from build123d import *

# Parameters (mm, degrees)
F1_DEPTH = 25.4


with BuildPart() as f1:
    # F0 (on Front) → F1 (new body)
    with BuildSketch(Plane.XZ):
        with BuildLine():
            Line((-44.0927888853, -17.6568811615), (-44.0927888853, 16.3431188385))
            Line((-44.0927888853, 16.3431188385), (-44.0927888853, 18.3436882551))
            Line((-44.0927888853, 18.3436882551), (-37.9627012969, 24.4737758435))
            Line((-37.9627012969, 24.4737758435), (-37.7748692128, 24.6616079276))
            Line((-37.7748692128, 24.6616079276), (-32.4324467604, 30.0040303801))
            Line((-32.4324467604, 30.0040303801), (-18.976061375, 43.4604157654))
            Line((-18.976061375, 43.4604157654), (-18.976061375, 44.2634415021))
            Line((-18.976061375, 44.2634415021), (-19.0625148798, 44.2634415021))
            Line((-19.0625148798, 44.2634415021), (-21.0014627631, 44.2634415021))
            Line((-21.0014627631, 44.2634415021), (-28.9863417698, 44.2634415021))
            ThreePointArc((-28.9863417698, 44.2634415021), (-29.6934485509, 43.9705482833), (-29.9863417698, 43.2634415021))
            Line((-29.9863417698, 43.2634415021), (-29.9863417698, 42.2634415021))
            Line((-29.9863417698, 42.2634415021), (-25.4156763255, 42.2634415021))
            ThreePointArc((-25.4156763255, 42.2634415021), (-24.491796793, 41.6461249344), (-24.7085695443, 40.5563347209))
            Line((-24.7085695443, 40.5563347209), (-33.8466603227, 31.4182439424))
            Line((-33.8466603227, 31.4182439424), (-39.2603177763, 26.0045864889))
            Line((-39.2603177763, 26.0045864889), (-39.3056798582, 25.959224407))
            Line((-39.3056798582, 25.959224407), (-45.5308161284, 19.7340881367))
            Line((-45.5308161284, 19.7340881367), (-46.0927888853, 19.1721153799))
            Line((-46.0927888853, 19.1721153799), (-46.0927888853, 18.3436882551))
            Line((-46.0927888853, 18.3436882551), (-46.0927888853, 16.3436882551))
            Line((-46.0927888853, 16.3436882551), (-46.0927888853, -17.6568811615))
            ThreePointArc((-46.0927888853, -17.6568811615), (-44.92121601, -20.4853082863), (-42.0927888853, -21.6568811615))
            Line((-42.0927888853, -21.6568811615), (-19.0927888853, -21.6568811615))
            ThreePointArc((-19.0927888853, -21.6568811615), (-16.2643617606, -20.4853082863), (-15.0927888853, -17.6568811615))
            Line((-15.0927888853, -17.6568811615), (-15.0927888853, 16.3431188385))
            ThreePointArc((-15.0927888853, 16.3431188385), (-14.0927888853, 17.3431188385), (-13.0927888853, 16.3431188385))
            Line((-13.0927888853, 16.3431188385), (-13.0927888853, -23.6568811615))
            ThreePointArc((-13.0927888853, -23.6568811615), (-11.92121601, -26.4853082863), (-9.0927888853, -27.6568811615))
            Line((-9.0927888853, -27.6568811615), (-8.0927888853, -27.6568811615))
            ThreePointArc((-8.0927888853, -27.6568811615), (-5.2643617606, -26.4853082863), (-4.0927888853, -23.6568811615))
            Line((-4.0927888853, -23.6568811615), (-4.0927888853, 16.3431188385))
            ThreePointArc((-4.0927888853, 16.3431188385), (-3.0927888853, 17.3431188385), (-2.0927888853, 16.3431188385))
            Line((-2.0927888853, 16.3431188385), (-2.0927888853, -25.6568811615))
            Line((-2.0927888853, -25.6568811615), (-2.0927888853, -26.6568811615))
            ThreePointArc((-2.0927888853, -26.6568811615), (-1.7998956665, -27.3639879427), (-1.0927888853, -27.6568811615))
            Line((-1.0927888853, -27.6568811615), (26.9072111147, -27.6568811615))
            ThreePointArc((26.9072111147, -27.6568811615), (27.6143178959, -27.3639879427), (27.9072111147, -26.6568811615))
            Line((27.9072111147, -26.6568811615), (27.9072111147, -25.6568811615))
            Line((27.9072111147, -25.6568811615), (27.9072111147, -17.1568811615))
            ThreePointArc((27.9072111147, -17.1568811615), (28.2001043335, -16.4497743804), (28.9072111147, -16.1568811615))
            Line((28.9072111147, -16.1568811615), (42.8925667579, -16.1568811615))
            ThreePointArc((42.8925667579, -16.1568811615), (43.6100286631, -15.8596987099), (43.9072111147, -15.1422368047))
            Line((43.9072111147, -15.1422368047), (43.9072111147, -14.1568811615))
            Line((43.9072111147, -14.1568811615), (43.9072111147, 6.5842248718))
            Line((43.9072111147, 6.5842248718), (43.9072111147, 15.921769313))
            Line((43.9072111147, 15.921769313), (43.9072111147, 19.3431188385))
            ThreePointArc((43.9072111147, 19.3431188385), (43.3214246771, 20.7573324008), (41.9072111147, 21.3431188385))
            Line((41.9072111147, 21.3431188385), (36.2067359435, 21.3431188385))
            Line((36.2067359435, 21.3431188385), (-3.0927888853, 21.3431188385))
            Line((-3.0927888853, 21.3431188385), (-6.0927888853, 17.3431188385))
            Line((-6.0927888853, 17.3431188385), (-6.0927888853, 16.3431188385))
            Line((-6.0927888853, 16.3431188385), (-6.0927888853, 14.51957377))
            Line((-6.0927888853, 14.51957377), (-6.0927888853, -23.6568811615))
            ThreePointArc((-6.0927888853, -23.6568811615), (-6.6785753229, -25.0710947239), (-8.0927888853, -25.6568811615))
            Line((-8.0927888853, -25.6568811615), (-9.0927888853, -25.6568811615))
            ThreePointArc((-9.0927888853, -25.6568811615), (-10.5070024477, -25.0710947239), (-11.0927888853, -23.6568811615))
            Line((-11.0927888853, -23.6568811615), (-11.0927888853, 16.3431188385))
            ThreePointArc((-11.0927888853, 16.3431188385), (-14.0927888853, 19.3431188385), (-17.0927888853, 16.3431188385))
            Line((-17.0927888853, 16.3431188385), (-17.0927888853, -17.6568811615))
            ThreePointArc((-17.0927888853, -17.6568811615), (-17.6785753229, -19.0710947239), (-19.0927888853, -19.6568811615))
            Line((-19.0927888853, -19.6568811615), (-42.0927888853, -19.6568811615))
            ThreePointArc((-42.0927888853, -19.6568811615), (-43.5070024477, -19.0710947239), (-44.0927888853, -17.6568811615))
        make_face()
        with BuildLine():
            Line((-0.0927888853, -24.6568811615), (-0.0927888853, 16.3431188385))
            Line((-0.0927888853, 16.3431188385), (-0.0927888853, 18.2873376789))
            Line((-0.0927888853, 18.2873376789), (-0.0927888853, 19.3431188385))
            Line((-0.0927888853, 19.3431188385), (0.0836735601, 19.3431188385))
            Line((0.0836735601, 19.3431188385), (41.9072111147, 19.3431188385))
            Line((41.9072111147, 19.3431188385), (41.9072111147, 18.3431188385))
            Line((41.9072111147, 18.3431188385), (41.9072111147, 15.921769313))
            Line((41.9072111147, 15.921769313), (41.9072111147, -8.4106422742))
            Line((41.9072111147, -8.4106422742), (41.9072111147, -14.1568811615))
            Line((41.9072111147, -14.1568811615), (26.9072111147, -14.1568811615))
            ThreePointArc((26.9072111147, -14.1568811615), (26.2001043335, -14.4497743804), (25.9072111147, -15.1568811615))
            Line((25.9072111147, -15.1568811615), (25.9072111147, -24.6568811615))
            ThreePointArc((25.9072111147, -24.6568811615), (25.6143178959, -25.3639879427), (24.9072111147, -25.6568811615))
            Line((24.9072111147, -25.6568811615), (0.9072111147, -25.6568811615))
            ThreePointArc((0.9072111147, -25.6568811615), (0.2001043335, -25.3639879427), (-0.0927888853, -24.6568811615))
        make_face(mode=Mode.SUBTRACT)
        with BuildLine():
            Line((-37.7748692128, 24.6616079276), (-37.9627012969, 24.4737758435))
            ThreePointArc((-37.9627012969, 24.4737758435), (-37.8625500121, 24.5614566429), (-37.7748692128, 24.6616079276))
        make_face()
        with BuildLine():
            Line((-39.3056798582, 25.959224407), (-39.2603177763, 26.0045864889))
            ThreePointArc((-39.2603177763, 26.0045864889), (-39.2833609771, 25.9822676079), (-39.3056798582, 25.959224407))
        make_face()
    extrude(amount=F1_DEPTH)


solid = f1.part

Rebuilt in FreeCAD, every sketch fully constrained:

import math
import FreeCAD as App
import Part
import Sketcher
Q = App.Units.Quantity

doc = App.newDocument("Part")
params = doc.addObject("Spreadsheet::Sheet", "Params")
for row, (alias, value) in enumerate([
    ("sketch1_radius", "1 mm"),
    ("sketch1_radius2", "1 mm"),
    ("sketch1_radius3", "4 mm"),
    ("sketch1_radius4", "4 mm"),
    ("sketch1_radius5", "1 mm"),
    ("pad1_length", "25.4 mm"),
], start=1):
    params.set(f"A{row}", alias)
    params.set(f"B{row}", "=" + value)
    params.setAlias(f"B{row}", alias)

body = doc.addObject("PartDesign::Body", "Body")

# Sketch on XZ plane
sketch1 = doc.addObject("Sketcher::SketchObject", "Sketch")
body.addObject(sketch1)
sketch1.AttachmentSupport = (doc.XZ_Plane, [""])
sketch1.MapMode = "FlatFace"
sketch1.addGeometry([
    Part.LineSegment(App.Vector(-44.092789, -17.656881, 0), App.Vector(-44.092789, 18.343688, 0)),  # 0
    Part.LineSegment(App.Vector(-44.092789, 18.343688, 0), App.Vector(-37.962701, 24.473776, 0)),  # 1
    Part.ArcOfCircle(Part.Circle(App.Vector(-38.572955, 25.271862, 0), App.Vector(0, 0, 1), 1.004665), math.radians(-52.596776), math.radians(-37.403224)),  # 2
    Part.LineSegment(App.Vector(-37.774869, 24.661608, 0), App.Vector(-32.432447, 30.00403, 0)),  # 3
    Part.LineSegment(App.Vector(-32.432447, 30.00403, 0), App.Vector(-18.976061, 43.460416, 0)),  # 4
    Part.LineSegment(App.Vector(-18.976061, 43.460416, 0), App.Vector(-18.976061, 44.263442, 0)),  # 5
    Part.LineSegment(App.Vector(-18.976061, 44.263442, 0), App.Vector(-28.986342, 44.263442, 0)),  # 6
    Part.ArcOfCircle(Part.Circle(App.Vector(-28.986342, 43.263442, 0), App.Vector(0, 0, 1), 1), math.radians(90), math.radians(180)),  # 7
    Part.LineSegment(App.Vector(-29.986342, 43.263442, 0), App.Vector(-29.986342, 42.263442, 0)),  # 8
    Part.LineSegment(App.Vector(-29.986342, 42.263442, 0), App.Vector(-25.415676, 42.263442, 0)),  # 9
    Part.ArcOfCircle(Part.Circle(App.Vector(-25.415676, 41.263442, 0), App.Vector(0, 0, 1), 1), math.radians(-45), math.radians(90)),  # 10
    Part.LineSegment(App.Vector(-24.70857, 40.556335, 0), App.Vector(-33.84666, 31.418244, 0)),  # 11
    Part.LineSegment(App.Vector(-33.84666, 31.418244, 0), App.Vector(-39.260318, 26.004586, 0)),  # 12
    Part.ArcOfCircle(Part.Circle(App.Vector(-38.572955, 25.271862, 0), App.Vector(0, 0, 1), 1.004665), math.radians(133.170413), math.radians(136.829587)),  # 13
    Part.LineSegment(App.Vector(-39.30568, 25.959224, 0), App.Vector(-45.530816, 19.734088, 0)),  # 14
    Part.LineSegment(App.Vector(-45.530816, 19.734088, 0), App.Vector(-46.092789, 19.172115, 0)),  # 15
    Part.LineSegment(App.Vector(-46.092789, 19.172115, 0), App.Vector(-46.092789, -17.656881, 0)),  # 16
    Part.ArcOfCircle(Part.Circle(App.Vector(-42.092789, -17.656881, 0), App.Vector(0, 0, 1), 4), math.radians(180), math.radians(270)),  # 17
    Part.LineSegment(App.Vector(-42.092789, -21.656881, 0), App.Vector(-19.092789, -21.656881, 0)),  # 18
    Part.ArcOfCircle(Part.Circle(App.Vector(-19.092789, -17.656881, 0), App.Vector(0, 0, 1), 4), math.radians(-90), math.radians(0)),  # 19
    Part.LineSegment(App.Vector(-15.092789, -17.656881, 0), App.Vector(-15.092789, 16.343119, 0)),  # 20
    Part.ArcOfCircle(Part.Circle(App.Vector(-14.092789, 16.343119, 0), App.Vector(0, 0, 1), 1), math.radians(0), math.radians(180)),  # 21
    Part.LineSegment(App.Vector(-13.092789, 16.343119, 0), App.Vector(-13.092789, -23.656881, 0)),  # 22
    Part.ArcOfCircle(Part.Circle(App.Vector(-9.092789, -23.656881, 0), App.Vector(0, 0, 1), 4), math.radians(180), math.radians(270)),  # 23
    Part.LineSegment(App.Vector(-9.092789, -27.656881, 0), App.Vector(-8.092789, -27.656881, 0)),  # 24
    Part.ArcOfCircle(Part.Circle(App.Vector(-8.092789, -23.656881, 0), App.Vector(0, 0, 1), 4), math.radians(-90), math.radians(0)),  # 25
    Part.LineSegment(App.Vector(-4.092789, -23.656881, 0), App.Vector(-4.092789, 16.343119, 0)),  # 26
    Part.ArcOfCircle(Part.Circle(App.Vector(-3.092789, 16.343119, 0), App.Vector(0, 0, 1), 1), math.radians(0), math.radians(180)),  # 27
    Part.LineSegment(App.Vector(-2.092789, 16.343119, 0), App.Vector(-2.092789, -26.656881, 0)),  # 28
    Part.ArcOfCircle(Part.Circle(App.Vector(-1.092789, -26.656881, 0), App.Vector(0, 0, 1), 1), math.radians(180), math.radians(270)),  # 29
    Part.LineSegment(App.Vector(-1.092789, -27.656881, 0), App.Vector(26.907211, -27.656881, 0)),  # 30
    Part.ArcOfCircle(Part.Circle(App.Vector(26.907211, -26.656881, 0), App.Vector(0, 0, 1), 1), math.radians(-90), math.radians(0)),  # 31
    Part.LineSegment(App.Vector(27.907211, -26.656881, 0), App.Vector(27.907211, -17.156881, 0)),  # 32
    Part.ArcOfCircle(Part.Circle(App.Vector(28.907211, -17.156881, 0), App.Vector(0, 0, 1), 1), math.radians(90), math.radians(180)),  # 33
    Part.LineSegment(App.Vector(28.907211, -16.156881, 0), App.Vector(42.892567, -16.156881, 0)),  # 34
    Part.ArcOfCircle(Part.Circle(App.Vector(42.892567, -15.142237, 0), App.Vector(0, 0, 1), 1.014644), math.radians(-90), math.radians(0)),  # 35
    Part.LineSegment(App.Vector(43.907211, -15.142237, 0), App.Vector(43.907211, 19.343119, 0)),  # 36
    Part.ArcOfCircle(Part.Circle(App.Vector(41.907211, 19.343119, 0), App.Vector(0, 0, 1), 2), math.radians(0), math.radians(90)),  # 37
    Part.LineSegment(App.Vector(41.907211, 21.343119, 0), App.Vector(-3.092789, 21.343119, 0)),  # 38
    Part.LineSegment(App.Vector(-3.092789, 21.343119, 0), App.Vector(-6.092789, 17.343119, 0)),  # 39
    Part.LineSegment(App.Vector(-6.092789, 17.343119, 0), App.Vector(-6.092789, -23.656881, 0)),  # 40
    Part.ArcOfCircle(Part.Circle(App.Vector(-8.092789, -23.656881, 0), App.Vector(0, 0, 1), 2), math.radians(-90), math.radians(0)),  # 41
    Part.LineSegment(App.Vector(-8.092789, -25.656881, 0), App.Vector(-9.092789, -25.656881, 0)),  # 42
    Part.ArcOfCircle(Part.Circle(App.Vector(-9.092789, -23.656881, 0), App.Vector(0, 0, 1), 2), math.radians(180), math.radians(270)),  # 43
    Part.LineSegment(App.Vector(-11.092789, -23.656881, 0), App.Vector(-11.092789, 16.343119, 0)),  # 44
    Part.ArcOfCircle(Part.Circle(App.Vector(-14.092789, 16.343119, 0), App.Vector(0, 0, 1), 3), math.radians(0), math.radians(180)),  # 45
    Part.LineSegment(App.Vector(-17.092789, 16.343119, 0), App.Vector(-17.092789, -17.656881, 0)),  # 46
    Part.ArcOfCircle(Part.Circle(App.Vector(-19.092789, -17.656881, 0), App.Vector(0, 0, 1), 2), math.radians(-90), math.radians(0)),  # 47
    Part.LineSegment(App.Vector(-19.092789, -19.656881, 0), App.Vector(-42.092789, -19.656881, 0)),  # 48
    Part.ArcOfCircle(Part.Circle(App.Vector(-42.092789, -17.656881, 0), App.Vector(0, 0, 1), 2), math.radians(180), math.radians(270)),  # 49
    Part.ArcOfCircle(Part.Circle(App.Vector(0.907211, -24.656881, 0), App.Vector(0, 0, 1), 1), math.radians(180), math.radians(270)),  # 50
    Part.LineSegment(App.Vector(-0.092789, -24.656881, 0), App.Vector(-0.092789, 19.343119, 0)),  # 51
    Part.LineSegment(App.Vector(-0.092789, 19.343119, 0), App.Vector(41.907211, 19.343119, 0)),  # 52
    Part.LineSegment(App.Vector(41.907211, 19.343119, 0), App.Vector(41.907211, -14.156881, 0)),  # 53
    Part.LineSegment(App.Vector(41.907211, -14.156881, 0), App.Vector(26.907211, -14.156881, 0)),  # 54
    Part.ArcOfCircle(Part.Circle(App.Vector(26.907211, -15.156881, 0), App.Vector(0, 0, 1), 1), math.radians(90), math.radians(180)),  # 55
    Part.LineSegment(App.Vector(25.907211, -15.156881, 0), App.Vector(25.907211, -24.656881, 0)),  # 56
    Part.ArcOfCircle(Part.Circle(App.Vector(24.907211, -24.656881, 0), App.Vector(0, 0, 1), 1), math.radians(-90), math.radians(0)),  # 57
    Part.LineSegment(App.Vector(24.907211, -25.656881, 0), App.Vector(0.907211, -25.656881, 0)),  # 58
], False)
sketch1.addConstraint([
    Sketcher.Constraint("Coincident", 0, 2, 1, 1),
    Sketcher.Constraint("Coincident", 1, 2, 2, 1),
    Sketcher.Constraint("Coincident", 2, 2, 3, 1),
    Sketcher.Constraint("Coincident", 3, 2, 4, 1),
    Sketcher.Constraint("Coincident", 4, 2, 5, 1),
    Sketcher.Constraint("Coincident", 5, 2, 6, 1),
    Sketcher.Constraint("Coincident", 6, 2, 7, 1),
    Sketcher.Constraint("Coincident", 7, 2, 8, 1),
    Sketcher.Constraint("Coincident", 8, 2, 9, 1),
    Sketcher.Constraint("Coincident", 9, 2, 10, 2),
    Sketcher.Constraint("Coincident", 10, 1, 11, 1),
    Sketcher.Constraint("Coincident", 11, 2, 12, 1),
    Sketcher.Constraint("Coincident", 12, 2, 13, 1),
    Sketcher.Constraint("Coincident", 13, 2, 14, 1),
    Sketcher.Constraint("Coincident", 14, 2, 15, 1),
    Sketcher.Constraint("Coincident", 15, 2, 16, 1),
    Sketcher.Constraint("Coincident", 16, 2, 17, 1),
    Sketcher.Constraint("Coincident", 17, 2, 18, 1),
    Sketcher.Constraint("Coincident", 18, 2, 19, 1),
    Sketcher.Constraint("Coincident", 19, 2, 20, 1),
    Sketcher.Constraint("Coincident", 20, 2, 21, 2),
    Sketcher.Constraint("Coincident", 21, 1, 22, 1),
    Sketcher.Constraint("Coincident", 22, 2, 23, 1),
    Sketcher.Constraint("Coincident", 23, 2, 24, 1),
    Sketcher.Constraint("Coincident", 24, 2, 25, 1),
    Sketcher.Constraint("Coincident", 25, 2, 26, 1),
    Sketcher.Constraint("Coincident", 26, 2, 27, 2),
    Sketcher.Constraint("Coincident", 27, 1, 28, 1),
    Sketcher.Constraint("Coincident", 28, 2, 29, 1),
    Sketcher.Constraint("Coincident", 29, 2, 30, 1),
    Sketcher.Constraint("Coincident", 30, 2, 31, 1),
    Sketcher.Constraint("Coincident", 31, 2, 32, 1),
    Sketcher.Constraint("Coincident", 32, 2, 33, 2),
    Sketcher.Constraint("Coincident", 33, 1, 34, 1),
    Sketcher.Constraint("Coincident", 34, 2, 35, 1),
    Sketcher.Constraint("Coincident", 35, 2, 36, 1),
    Sketcher.Constraint("Coincident", 36, 2, 37, 1),
    Sketcher.Constraint("Coincident", 37, 2, 38, 1),
    Sketcher.Constraint("Coincident", 38, 2, 39, 1),
    Sketcher.Constraint("Coincident", 39, 2, 40, 1),
    Sketcher.Constraint("Coincident", 40, 2, 41, 2),
    Sketcher.Constraint("Coincident", 41, 1, 42, 1),
    Sketcher.Constraint("Coincident", 42, 2, 43, 2),
    Sketcher.Constraint("Coincident", 43, 1, 44, 1),
    Sketcher.Constraint("Coincident", 44, 2, 45, 1),
    Sketcher.Constraint("Coincident", 45, 2, 46, 1),
    Sketcher.Constraint("Coincident", 46, 2, 47, 2),
    Sketcher.Constraint("Coincident", 47, 1, 48, 1),
    Sketcher.Constraint("Coincident", 48, 2, 49, 2),
    Sketcher.Constraint("Coincident", 49, 1, 0, 1),
    Sketcher.Constraint("Coincident", 50, 1, 51, 1),
    Sketcher.Constraint("Coincident", 51, 2, 52, 1),
    Sketcher.Constraint("Coincident", 52, 2, 53, 1),
    Sketcher.Constraint("Coincident", 53, 2, 54, 1),
    Sketcher.Constraint("Coincident", 54, 2, 55, 1),
    Sketcher.Constraint("Coincident", 55, 2, 56, 1),
    Sketcher.Constraint("Coincident", 56, 2, 57, 2),
    Sketcher.Constraint("Coincident", 57, 1, 58, 1),
    Sketcher.Constraint("Coincident", 58, 2, 50, 2),
    Sketcher.Constraint("Vertical", 0),
    Sketcher.Constraint("Vertical", 5),
    Sketcher.Constraint("Horizontal", 6),
    Sketcher.Constraint("Vertical", 8),
    Sketcher.Constraint("Horizontal", 9),
    Sketcher.Constraint("Vertical", 16),
    Sketcher.Constraint("Horizontal", 18),
    Sketcher.Constraint("Vertical", 20),
    Sketcher.Constraint("Vertical", 22),
    Sketcher.Constraint("Horizontal", 24),
    Sketcher.Constraint("Vertical", 26),
    Sketcher.Constraint("Vertical", 28),
    Sketcher.Constraint("Horizontal", 30),
    Sketcher.Constraint("Vertical", 32),
    Sketcher.Constraint("Horizontal", 34),
    Sketcher.Constraint("Vertical", 36),
    Sketcher.Constraint("Horizontal", 38),
    Sketcher.Constraint("Vertical", 40),
    Sketcher.Constraint("Horizontal", 42),
    Sketcher.Constraint("Vertical", 44),
    Sketcher.Constraint("Vertical", 46),
    Sketcher.Constraint("Horizontal", 48),
    Sketcher.Constraint("Vertical", 51),
    Sketcher.Constraint("Horizontal", 52),
    Sketcher.Constraint("Vertical", 53),
    Sketcher.Constraint("Horizontal", 54),
    Sketcher.Constraint("Vertical", 56),
    Sketcher.Constraint("Horizontal", 58),
    Sketcher.Constraint("Coincident", 13, 3, 2, 3),
    Sketcher.Constraint("Coincident", 41, 3, 25, 3),
    Sketcher.Constraint("Coincident", 43, 3, 23, 3),
    Sketcher.Constraint("Coincident", 45, 3, 21, 3),
    Sketcher.Constraint("Coincident", 47, 3, 19, 3),
    Sketcher.Constraint("Coincident", 49, 3, 17, 3),
    Sketcher.Constraint("Coincident", 52, 2, 37, 3),
    Sketcher.Constraint("Radius", 7, Q("1 mm")),
    Sketcher.Constraint("Radius", 10, Q("1 mm")),
    Sketcher.Constraint("Radius", 17, Q("4 mm")),
    Sketcher.Constraint("Radius", 19, Q("4 mm")),
    Sketcher.Constraint("Radius", 21, Q("1 mm")),
    Sketcher.Constraint("Radius", 23, Q("4 mm")),
    Sketcher.Constraint("Radius", 25, Q("4 mm")),
    Sketcher.Constraint("Radius", 27, Q("1 mm")),
    Sketcher.Constraint("Radius", 29, Q("1 mm")),
    Sketcher.Constraint("Radius", 31, Q("1 mm")),
    Sketcher.Constraint("Radius", 33, Q("1 mm")),
    Sketcher.Constraint("Radius", 37, Q("2 mm")),
    Sketcher.Constraint("Radius", 41, Q("2 mm")),
    Sketcher.Constraint("Radius", 50, Q("1 mm")),
    Sketcher.Constraint("Radius", 55, Q("1 mm")),
    Sketcher.Constraint("Radius", 57, Q("1 mm")),
    Sketcher.Constraint("DistanceX", 18, 1, 18, 2, Q("23 mm")),
    Sketcher.Constraint("DistanceX", 24, 1, 24, 2, Q("1 mm")),
    Sketcher.Constraint("DistanceX", 30, 1, 30, 2, Q("28 mm")),
    Sketcher.Constraint("DistanceX", 38, 2, 38, 1, Q("45 mm")),
    Sketcher.Constraint("DistanceX", 42, 2, 42, 1, Q("1 mm")),
    Sketcher.Constraint("DistanceX", 48, 2, 48, 1, Q("23 mm")),
    Sketcher.Constraint("DistanceX", 52, 1, 52, 2, Q("42 mm")),
    Sketcher.Constraint("DistanceX", 54, 2, 54, 1, Q("15 mm")),
    Sketcher.Constraint("DistanceX", 58, 2, 58, 1, Q("24 mm")),
    Sketcher.Constraint("DistanceY", 8, 2, 8, 1, Q("1 mm")),
    Sketcher.Constraint("DistanceY", 20, 1, 20, 2, Q("34 mm")),
    Sketcher.Constraint("DistanceY", 22, 2, 22, 1, Q("40 mm")),
    Sketcher.Constraint("DistanceY", 26, 1, 26, 2, Q("40 mm")),
    Sketcher.Constraint("DistanceY", 28, 2, 28, 1, Q("43 mm")),
    Sketcher.Constraint("DistanceY", 40, 2, 40, 1, Q("41 mm")),
    Sketcher.Constraint("DistanceY", 44, 1, 44, 2, Q("40 mm")),
    Sketcher.Constraint("DistanceY", 46, 2, 46, 1, Q("34 mm")),
    Sketcher.Constraint("DistanceY", 51, 1, 51, 2, Q("44 mm")),
    Sketcher.Constraint("Distance", 39, Q("5 mm")),
    Sketcher.Constraint("DistanceY", 32, 1, 32, 2, Q("9.5 mm")),
    Sketcher.Constraint("DistanceY", 53, 2, 53, 1, Q("33.5 mm")),
    Sketcher.Constraint("DistanceY", 56, 2, 56, 1, Q("9.5 mm")),
    Sketcher.Constraint("Radius", 2, Q("1.004665 mm")),
    Sketcher.Constraint("Radius", 13, Q("1.004665 mm")),
    Sketcher.Constraint("Radius", 35, Q("1.014644 mm")),
    Sketcher.Constraint("DistanceX", 6, 2, 6, 1, Q("10.01028 mm")),
    Sketcher.Constraint("DistanceY", 0, 1, 0, 2, Q("36.000569 mm")),
    Sketcher.Constraint("DistanceX", 1, 2, -1, 1, Q("37.962701 mm")),
    Sketcher.Constraint("Distance", 11, Q("12.923212 mm")),
    Sketcher.Constraint("Distance", 15, Q("0.794749 mm")),
    Sketcher.Constraint("DistanceX", 9, 1, 9, 2, Q("4.570665 mm")),
    Sketcher.Constraint("DistanceX", 34, 1, 34, 2, Q("13.985356 mm")),
    Sketcher.Constraint("DistanceY", 5, 1, 5, 2, Q("0.803026 mm")),
    Sketcher.Constraint("DistanceY", 16, 2, 16, 1, Q("36.828997 mm")),
    Sketcher.Constraint("DistanceY", 36, 1, 36, 2, Q("34.485356 mm")),
    Sketcher.Constraint("DistanceX", 7, 3, -1, 1, Q("28.986342 mm")),
    Sketcher.Constraint("DistanceY", -1, 1, 7, 3, Q("43.263442 mm")),
    Sketcher.Constraint("DistanceY", -1, 1, 10, 3, Q("41.263442 mm")),
    Sketcher.Constraint("DistanceX", 17, 3, -1, 1, Q("42.092789 mm")),
    Sketcher.Constraint("DistanceY", 17, 3, -1, 1, Q("17.656881 mm")),
    Sketcher.Constraint("DistanceX", 19, 3, -1, 1, Q("19.092789 mm")),
    Sketcher.Constraint("DistanceY", -1, 1, 21, 3, Q("16.343119 mm")),
    Sketcher.Constraint("DistanceY", 23, 3, -1, 1, Q("23.656881 mm")),
    Sketcher.Constraint("DistanceX", 25, 3, -1, 1, Q("8.092789 mm")),
    Sketcher.Constraint("DistanceY", -1, 1, 27, 3, Q("16.343119 mm")),
    Sketcher.Constraint("DistanceY", 29, 3, -1, 1, Q("26.656881 mm")),
    Sketcher.Constraint("DistanceX", -1, 1, 31, 3, Q("26.907211 mm")),
    Sketcher.Constraint("DistanceY", 33, 3, -1, 1, Q("17.156881 mm")),
    Sketcher.Constraint("DistanceX", -1, 1, 37, 3, Q("41.907211 mm")),
    Sketcher.Constraint("DistanceY", -1, 1, 37, 3, Q("19.343119 mm")),
    Sketcher.Constraint("DistanceY", 50, 3, -1, 1, Q("24.656881 mm")),
    Sketcher.Constraint("DistanceX", -1, 1, 55, 3, Q("26.907211 mm")),
    Sketcher.Constraint("DistanceY", -1, 1, 0, 2, Q("18.343688 mm")),
    Sketcher.Constraint("DistanceX", 2, 2, -1, 1, Q("37.774869 mm")),
    Sketcher.Constraint("DistanceY", -1, 1, 3, 2, Q("30.00403 mm")),
    Sketcher.Constraint("DistanceX", 4, 2, -1, 1, Q("18.976061 mm")),
    Sketcher.Constraint("DistanceX", 10, 1, -1, 1, Q("24.70857 mm")),
    Sketcher.Constraint("DistanceX", 11, 2, -1, 1, Q("33.84666 mm")),
    Sketcher.Constraint("DistanceX", 13, 2, -1, 1, Q("39.30568 mm")),
    Sketcher.Constraint("DistanceY", -1, 1, 14, 2, Q("19.734088 mm")),
    Sketcher.Constraint("DistanceY", 16, 2, -1, 1, Q("17.656881 mm")),
    Sketcher.Constraint("DistanceX", 17, 2, -1, 1, Q("42.092789 mm")),
    Sketcher.Constraint("DistanceY", 19, 2, -1, 1, Q("17.656881 mm")),
    Sketcher.Constraint("DistanceY", -1, 1, 21, 1, Q("16.343119 mm")),
    Sketcher.Constraint("DistanceX", 23, 2, -1, 1, Q("9.092789 mm")),
    Sketcher.Constraint("DistanceY", 25, 2, -1, 1, Q("23.656881 mm")),
    Sketcher.Constraint("DistanceY", -1, 1, 27, 1, Q("16.343119 mm")),
    Sketcher.Constraint("DistanceX", 29, 2, -1, 1, Q("1.092789 mm")),
    Sketcher.Constraint("DistanceY", 31, 2, -1, 1, Q("26.656881 mm")),
    Sketcher.Constraint("DistanceX", -1, 1, 33, 1, Q("28.907211 mm")),
    Sketcher.Constraint("DistanceY", -1, 1, 36, 2, Q("19.343119 mm")),
    Sketcher.Constraint("DistanceX", -1, 1, 37, 2, Q("41.907211 mm")),
    Sketcher.Constraint("DistanceX", 41, 1, -1, 1, Q("8.092789 mm")),
    Sketcher.Constraint("DistanceY", 43, 1, -1, 1, Q("23.656881 mm")),
    Sketcher.Constraint("DistanceY", -1, 1, 45, 2, Q("16.343119 mm")),
    Sketcher.Constraint("DistanceX", 47, 1, -1, 1, Q("19.092789 mm")),
    Sketcher.Constraint("DistanceY", 55, 2, -1, 1, Q("15.156881 mm")),
    Sketcher.Constraint("DistanceX", -1, 1, 57, 1, Q("24.907211 mm")),
    Sketcher.Constraint("Distance", 1, Q("8.669253 mm")),
    Sketcher.Constraint("Distance", 3, Q("7.555326 mm")),
    Sketcher.Constraint("Distance", 4, Q("19.030203 mm")),
    Sketcher.Constraint("Distance", 12, Q("7.656068 mm")),
    Sketcher.Constraint("DistanceX", 10, 3, -1, 1, Q("25.415676 mm")),
])
sketch1.setExpression("Constraints[94]", "Params.sketch1_radius")
sketch1.setExpression("Constraints[95]", "Params.sketch1_radius2")
sketch1.setExpression("Constraints[96]", "Params.sketch1_radius3")
sketch1.setExpression("Constraints[97]", "Params.sketch1_radius4")
sketch1.setExpression("Constraints[98]", "Params.sketch1_radius5")
pad1 = doc.addObject("PartDesign::Pad", "Pad")
body.addObject(pad1)
pad1.Profile = sketch1
pad1.setExpression("Length", "Params.pad1_length")

doc.recompute()
